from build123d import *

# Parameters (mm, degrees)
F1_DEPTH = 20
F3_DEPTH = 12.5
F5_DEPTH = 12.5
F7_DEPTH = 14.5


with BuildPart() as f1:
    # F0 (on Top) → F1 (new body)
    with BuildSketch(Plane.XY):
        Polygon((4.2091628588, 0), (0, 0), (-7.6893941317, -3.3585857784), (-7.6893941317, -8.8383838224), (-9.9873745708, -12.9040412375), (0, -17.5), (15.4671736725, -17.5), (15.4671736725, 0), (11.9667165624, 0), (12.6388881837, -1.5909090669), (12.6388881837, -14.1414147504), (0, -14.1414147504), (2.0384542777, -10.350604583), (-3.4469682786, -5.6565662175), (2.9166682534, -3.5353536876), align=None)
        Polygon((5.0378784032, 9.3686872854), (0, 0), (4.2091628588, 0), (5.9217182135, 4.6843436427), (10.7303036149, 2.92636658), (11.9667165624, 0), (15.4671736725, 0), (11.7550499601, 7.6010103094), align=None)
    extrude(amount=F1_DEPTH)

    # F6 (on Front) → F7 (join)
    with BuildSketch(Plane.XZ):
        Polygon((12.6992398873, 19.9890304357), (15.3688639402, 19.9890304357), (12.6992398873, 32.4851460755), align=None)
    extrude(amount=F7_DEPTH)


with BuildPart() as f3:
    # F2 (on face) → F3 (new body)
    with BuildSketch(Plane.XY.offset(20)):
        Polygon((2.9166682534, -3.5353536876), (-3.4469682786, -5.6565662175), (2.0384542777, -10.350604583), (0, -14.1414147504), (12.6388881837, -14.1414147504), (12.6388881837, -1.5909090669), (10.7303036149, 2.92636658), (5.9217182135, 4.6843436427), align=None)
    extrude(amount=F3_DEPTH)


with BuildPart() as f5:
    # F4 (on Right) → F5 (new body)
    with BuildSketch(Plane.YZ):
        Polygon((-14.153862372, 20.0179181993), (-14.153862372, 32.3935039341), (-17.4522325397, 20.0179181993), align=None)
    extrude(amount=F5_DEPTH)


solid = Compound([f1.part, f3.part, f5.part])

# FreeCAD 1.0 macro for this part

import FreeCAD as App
import Part
import Sketcher

V = App.Vector
Q = App.Units.Quantity

doc = App.newDocument("Part")
body = doc.addObject("PartDesign::Body", "Body")

sketch1 = body.newObject("Sketcher::SketchObject", "Sketch")
sketch1.AttachmentSupport = (doc.getObject("XY_Plane"), [""])
sketch1.MapMode = "FlatFace"
sketch1.addGeometry([
    Part.LineSegment(V(0, 0, 0), V(-7.689394, -3.358586, 0)),
    Part.LineSegment(V(-7.689394, -3.358586, 0), V(-7.689394, -8.838384, 0)),
    Part.LineSegment(V(-7.689394, -8.838384, 0), V(-9.987375, -12.904041, 0)),
    Part.LineSegment(V(-9.987375, -12.904041, 0), V(0, -17.5, 0)),
    Part.LineSegment(V(0, -17.5, 0), V(15.467174, -17.5, 0)),
    Part.LineSegment(V(15.467174, -17.5, 0), V(15.467174, 0, 0)),
    Part.LineSegment(V(15.467174, 0, 0), V(11.75505, 7.60101, 0)),
    Part.LineSegment(V(11.75505, 7.60101, 0), V(5.037878, 9.368687, 0)),
    Part.LineSegment(V(5.037878, 9.368687, 0), V(0, 0, 0)),
    Part.LineSegment(V(11.966717, 0, 0), V(12.638888, -1.590909, 0)),
    Part.LineSegment(V(12.638888, -1.590909, 0), V(12.638888, -14.141415, 0)),
    Part.LineSegment(V(12.638888, -14.141415, 0), V(0, -14.141415, 0)),
    Part.LineSegment(V(0, -14.141415, 0), V(2.038454, -10.350605, 0)),
    Part.LineSegment(V(2.038454, -10.350605, 0), V(-3.446968, -5.656566, 0)),
    Part.LineSegment(V(-3.446968, -5.656566, 0), V(2.916668, -3.535354, 0)),
    Part.LineSegment(V(2.916668, -3.535354, 0), V(4.209163, 0, 0)),
    Part.LineSegment(V(4.209163, 0, 0), V(5.921718, 4.684344, 0)),
    Part.LineSegment(V(5.921718, 4.684344, 0), V(10.730304, 2.926367, 0)),
    Part.LineSegment(V(10.730304, 2.926367, 0), V(11.966717, 0, 0)),
], False)
sketch1.addConstraint([
    Sketcher.Constraint("Coincident", 0, 2, 1, 1),
    Sketcher.Constraint("Coincident", 1, 2, 2, 1),
    Sketcher.Constraint("Coincident", 2, 2, 3, 1),
    Sketcher.Constraint("Coincident", 3, 2, 4, 1),
    Sketcher.Constraint("Coincident", 4, 2, 5, 1),
    Sketcher.Constraint("Coincident", 5, 2, 6, 1),
    Sketcher.Constraint("Coincident", 6, 2, 7, 1),
    Sketcher.Constraint("Coincident", 7, 2, 8, 1),
    Sketcher.Constraint("Coincident", 8, 2, 0, 1),
    Sketcher.Constraint("Coincident", 9, 2, 10, 1),
    Sketcher.Constraint("Coincident", 10, 2, 11, 1),
    Sketcher.Constraint("Coincident", 11, 2, 12, 1),
    Sketcher.Constraint("Coincident", 12, 2, 13, 1),
    Sketcher.Constraint("Coincident", 13, 2, 14, 1),
    Sketcher.Constraint("Coincident", 14, 2, 15, 1),
    Sketcher.Constraint("Coincident", 15, 2, 16, 1),
    Sketcher.Constraint("Coincident", 16, 2, 17, 1),
    Sketcher.Constraint("Coincident", 17, 2, 18, 1),
    Sketcher.Constraint("Coincident", 18, 2, 9, 1),
    Sketcher.Constraint("Vertical", 1),
    Sketcher.Constraint("Horizontal", 4),
    Sketcher.Constraint("Vertical", 5),
    Sketcher.Constraint("Vertical", 10),
    Sketcher.Constraint("Horizontal", 11),
    Sketcher.Constraint("Coincident", 8, 2, -1, 1),
    Sketcher.Constraint("PointOnObject", 3, 2, -2),
    Sketcher.Constraint("PointOnObject", 5, 2, -1),
    Sketcher.Constraint("PointOnObject", 11, 2, -2),
    Sketcher.Constraint("PointOnObject", 15, 2, -1),
    Sketcher.Constraint("PointOnObject", 18, 2, -1),
    Sketcher.Constraint("Parallel", 8, 12),
    Sketcher.Constraint("Parallel", 15, 16),
    Sketcher.Constraint("Perpendicular", 16, 17),
    Sketcher.Constraint("Parallel", 9, 18),
    Sketcher.Constraint("DistanceY", 5, 1, 5, 2, Q("17.5 mm")),
    Sketcher.Constraint("DistanceY", 1, 2, 1, 1, Q("5.479798 mm")),
    Sketcher.Constraint("DistanceX", 16, 2, 18, 2, Q("6.044998 mm")),
    Sketcher.Constraint("DistanceX", 11, 2, 11, 1, Q("12.638888 mm")),
    Sketcher.Constraint("Distance", 0, Q("8.390881 mm")),
    Sketcher.Constraint("Distance", 2, Q("4.670148 mm")),
    Sketcher.Constraint("Distance", 3, Q("10.994112 mm")),
    Sketcher.Constraint("Distance", 6, Q("8.459032 mm")),
    Sketcher.Constraint("Distance", 9, Q("1.72708 mm")),
    Sketcher.Constraint("Distance", 12, Q("4.30413 mm")),
    Sketcher.Constraint("Distance", 14, Q("6.707862 mm")),
    Sketcher.Constraint("Distance", 15, Q("3.764209 mm")),
    Sketcher.Constraint("Distance", 17, Q("5.119861 mm")),
    Sketcher.Constraint("DistanceX", 4, 1, 4, 2, Q("15.467174 mm")),
    Sketcher.Constraint("DistanceY", 10, 2, 10, 1, Q("12.550506 mm")),
    Sketcher.Constraint("DistanceY", 2, 2, -1, 1, Q("12.904041 mm")),
    Sketcher.Constraint("DistanceX", -1, 1, 6, 2, Q("11.75505 mm")),
    Sketcher.Constraint("DistanceX", -1, 1, 7, 2, Q("5.037878 mm")),
    Sketcher.Constraint("DistanceY", 9, 2, -1, 1, Q("1.590909 mm")),
    Sketcher.Constraint("DistanceX", 13, 2, -1, 1, Q("3.446968 mm")),
    Sketcher.Constraint("DistanceX", -1, 1, 14, 2, Q("2.916668 mm")),
    Sketcher.Constraint("DistanceY", 1, 2, 7, 2, Q("18.207071 mm")),
])
pad1 = body.newObject("PartDesign::Pad", "Pad")
pad1.Profile = sketch1
pad1.Length = 20

sketch2 = body.newObject("Sketcher::SketchObject", "Sketch001")
sketch2.AttachmentSupport = (doc.getObject("XZ_Plane"), [""])
sketch2.MapMode = "FlatFace"
sketch2.addGeometry([
    Part.LineSegment(V(12.69924, 19.98903, 0), V(15.368864, 19.98903, 0)),
    Part.LineSegment(V(15.368864, 19.98903, 0), V(12.69924, 32.485146, 0)),
    Part.LineSegment(V(12.69924, 32.485146, 0), V(12.69924, 19.98903, 0)),
], False)
sketch2.addConstraint([
    Sketcher.Constraint("Coincident", 0, 2, 1, 1),
    Sketcher.Constraint("Coincident", 1, 2, 2, 1),
    Sketcher.Constraint("Coincident", 2, 2, 0, 1),
    Sketcher.Constraint("Horizontal", 0),
    Sketcher.Constraint("Vertical", 2),
    Sketcher.Constraint("Distance", 1, Q("12.778098 mm")),
    Sketcher.Constraint("DistanceX", 0, 1, 0, 2, Q("2.669624 mm")),
    Sketcher.Constraint("DistanceY", -1, 1, 0, 2, Q("19.98903 mm")),
    Sketcher.Constraint("DistanceX", -1, 1, 1, 2, Q("12.69924 mm")),
])
pad2 = body.newObject("PartDesign::Pad", "Pad001")
pad2.Profile = sketch2
pad2.Length = 14.5
body2 = doc.addObject("PartDesign::Body", "Body001")

sketch3 = body2.newObject("Sketcher::SketchObject", "Sketch002")
sketch3.AttachmentSupport = (doc.getObject("XY_Plane001"), [""])
sketch3.MapMode = "FlatFace"
sketch3.AttachmentOffset = App.Placement(V(0, 0, 20), App.Rotation())
sketch3.addGeometry([
    Part.LineSegment(V(2.916668, -3.535354, 0), V(-3.446968, -5.656566, 0)),
    Part.LineSegment(V(-3.446968, -5.656566, 0), V(2.038454, -10.350605, 0)),
    Part.LineSegment(V(2.038454, -10.350605, 0), V(0, -14.141415, 0)),
    Part.LineSegment(V(0, -14.141415, 0), V(12.638888, -14.141415, 0)),
    Part.LineSegment(V(12.638888, -14.141415, 0), V(12.638888, -1.590909, 0)),
    Part.LineSegment(V(12.638888, -1.590909, 0), V(10.730304, 2.926367, 0)),
    Part.LineSegment(V(10.730304, 2.926367, 0), V(5.921718, 4.684344, 0)),
    Part.LineSegment(V(5.921718, 4.684344, 0), V(2.916668, -3.535354, 0)),
], False)
sketch3.addConstraint([
    Sketcher.Constraint("Coincident", 0, 2, 1, 1),
    Sketcher.Constraint("Coincident", 1, 2, 2, 1),
    Sketcher.Constraint("Coincident", 2, 2, 3, 1),
    Sketcher.Constraint("Coincident", 3, 2, 4, 1),
    Sketcher.Constraint("Coincident", 4, 2, 5, 1),
    Sketcher.Constraint("Coincident", 5, 2, 6, 1),
    Sketcher.Constraint("Coincident", 6, 2, 7, 1),
    Sketcher.Constraint("Coincident", 7, 2, 0, 1),
    Sketcher.Constraint("Horizontal", 3),
    Sketcher.Constraint("Vertical", 4),
    Sketcher.Constraint("PointOnObject", 2, 2, -2),
    Sketcher.Constraint("Perpendicular", 6, 7),
    Sketcher.Constraint("DistanceX", 3, 1, 3, 2, Q("12.638888 mm")),
    Sketcher.Constraint("Distance", 0, Q("6.707862 mm")),
    Sketcher.Constraint("Distance", 2, Q("4.30413 mm")),
    Sketcher.Constraint("Distance", 6, Q("5.119861 mm")),
    Sketcher.Constraint("DistanceY", 4, 1, 4, 2, Q("12.550506 mm")),
    Sketcher.Constraint("DistanceX", 0, 2, -1, 1, Q("3.446968 mm")),
    Sketcher.Constraint("DistanceY", 4, 2, -1, 1, Q("1.590909 mm")),
    Sketcher.Constraint("DistanceX", -1, 1, 6, 2, Q("5.921718 mm")),
    Sketcher.Constraint("DistanceX", -1, 1, 7, 2, Q("2.916668 mm")),
    Sketcher.Constraint("DistanceY", 1, 2, 0, 2, Q("4.694038 mm")),
    Sketcher.Constraint("DistanceY", 2, 2, 1, 2, Q("3.79081 mm")),
    Sketcher.Constraint("DistanceX", 1, 2, 5, 2, Q("8.691849 mm")),
])
pad3 = body2.newObject("PartDesign::Pad", "Pad002")
pad3.Profile = sketch3
pad3.Length = 12.5
body3 = doc.addObject("PartDesign::Body", "Body002")

sketch4 = body3.newObject("Sketcher::SketchObject", "Sketch003")
sketch4.AttachmentSupport = (doc.getObject("YZ_Plane002"), [""])
sketch4.MapMode = "FlatFace"
sketch4.addGeometry([
    Part.LineSegment(V(-14.153862, 20.017918, 0), V(-14.153862, 32.393504, 0)),
    Part.LineSegment(V(-14.153862, 32.393504, 0), V(-17.452233, 20.017918, 0)),
    Part.LineSegment(V(-17.452233, 20.017918, 0), V(-14.153862, 20.017918, 0)),
], False)
sketch4.addConstraint([
    Sketcher.Constraint("Coincident", 0, 2, 1, 1),
    Sketcher.Constraint("Coincident", 1, 2, 2, 1),
    Sketcher.Constraint("Coincident", 2, 2, 0, 1),
    Sketcher.Constraint("Vertical", 0),
    Sketcher.Constraint("Horizontal", 2),
    Sketcher.Constraint("DistanceX", 2, 1, 2, 2, Q("3.29837 mm")),
    Sketcher.Constraint("Distance", 1, Q("12.80759 mm")),
    Sketcher.Constraint("DistanceY", -1, 1, 1, 2, Q("20.017918 mm")),
    Sketcher.Constraint("DistanceX", 0, 2, -1, 1, Q("14.153862 mm")),
])
pad4 = body3.newObject("PartDesign::Pad", "Pad003")
pad4.Profile = sketch4
pad4.Length = 12.5

doc.recompute()
